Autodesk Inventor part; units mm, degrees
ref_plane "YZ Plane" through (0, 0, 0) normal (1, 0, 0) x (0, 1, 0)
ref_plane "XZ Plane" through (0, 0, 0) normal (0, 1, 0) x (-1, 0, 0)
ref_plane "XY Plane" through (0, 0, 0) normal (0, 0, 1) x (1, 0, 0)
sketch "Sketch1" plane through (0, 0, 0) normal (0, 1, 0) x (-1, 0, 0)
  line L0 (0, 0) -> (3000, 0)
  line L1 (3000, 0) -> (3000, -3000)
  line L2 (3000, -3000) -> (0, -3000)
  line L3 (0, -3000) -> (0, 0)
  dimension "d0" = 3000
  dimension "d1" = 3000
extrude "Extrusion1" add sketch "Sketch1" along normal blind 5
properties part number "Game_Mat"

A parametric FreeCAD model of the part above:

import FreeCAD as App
import Part
import Sketcher

V = App.Vector
Q = App.Units.Quantity

doc = App.newDocument("Part")
body = doc.addObject("PartDesign::Body", "Body")

# Sketch on XZ plane
sketch1 = body.newObject("Sketcher::SketchObject", "Sketch")
sketch1.AttachmentSupport = (doc.getObject("XZ_Plane"), [""])
sketch1.MapMode = "FlatFace"
sketch1.addGeometry([
    Part.LineSegment(V(-3000, 0, 0), V(0, 0, 0)),
    Part.LineSegment(V(0, 0, 0), V(0, -3000, 0)),
    Part.LineSegment(V(0, -3000, 0), V(-3000, -3000, 0)),
    Part.LineSegment(V(-3000, -3000, 0), V(-3000, 0, 0)),
], False)
sketch1.addConstraint([
    Sketcher.Constraint("Coincident", 0, 2, 1, 1),
    Sketcher.Constraint("Coincident", 1, 2, 2, 1),
    Sketcher.Constraint("Coincident", 2, 2, 3, 1),
    Sketcher.Constraint("Coincident", 3, 2, 0, 1),
    Sketcher.Constraint("Horizontal", 0),
    Sketcher.Constraint("Vertical", 1),
    Sketcher.Constraint("Horizontal", 2),
    Sketcher.Constraint("Vertical", 3),
    Sketcher.Constraint("Coincident", 0, 2, -1, 1),
    Sketcher.Constraint("Equal", 2, 1),
    Sketcher.Constraint("DistanceX", 0, 1, 0, 2, Q("3000 mm")),
])
pad1 = body.newObject("PartDesign::Pad", "Pad")
pad1.Profile = sketch1
pad1.Length = 5
pad1.Reversed = True

doc.recompute()
